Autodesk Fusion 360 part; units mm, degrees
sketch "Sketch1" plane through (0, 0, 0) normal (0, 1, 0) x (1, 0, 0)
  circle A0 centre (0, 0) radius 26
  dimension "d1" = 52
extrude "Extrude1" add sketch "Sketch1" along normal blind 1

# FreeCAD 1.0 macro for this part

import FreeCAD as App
import Part
import Sketcher
Q = App.Units.Quantity

doc = App.newDocument("Part")
params = doc.addObject("Spreadsheet::Sheet", "Params")
for row, (alias, value) in enumerate([
    ("sketch1_diameter", "52 mm"),
    ("pad1_length", "1 mm"),
], start=1):
    params.set(f"A{row}", alias)
    params.set(f"B{row}", "=" + value)
    params.setAlias(f"B{row}", alias)

body = doc.addObject("PartDesign::Body", "Body")

# Sketch on XZ plane
sketch1 = body.newObject("Sketcher::SketchObject", "Sketch")
sketch1.AttachmentSupport = (doc.getObject("XZ_Plane"), [""])
sketch1.MapMode = "FlatFace"
sketch1.addGeometry(Part.Circle(App.Vector(0, 0, 0), App.Vector(0, 0, 1), 26), False)
sketch1.addConstraint(Sketcher.Constraint("Coincident", 0, 3, -1, 1))
sketch1.addConstraint(Sketcher.Constraint("Diameter", 0, Q("52 mm")))
sketch1.setExpression("Constraints[1]", "Params.sketch1_diameter")
pad1 = body.newObject("PartDesign::Pad", "Pad")
pad1.Profile = sketch1
pad1.setExpression("Length", "Params.pad1_length")
pad1.Reversed = True

doc.recompute()
